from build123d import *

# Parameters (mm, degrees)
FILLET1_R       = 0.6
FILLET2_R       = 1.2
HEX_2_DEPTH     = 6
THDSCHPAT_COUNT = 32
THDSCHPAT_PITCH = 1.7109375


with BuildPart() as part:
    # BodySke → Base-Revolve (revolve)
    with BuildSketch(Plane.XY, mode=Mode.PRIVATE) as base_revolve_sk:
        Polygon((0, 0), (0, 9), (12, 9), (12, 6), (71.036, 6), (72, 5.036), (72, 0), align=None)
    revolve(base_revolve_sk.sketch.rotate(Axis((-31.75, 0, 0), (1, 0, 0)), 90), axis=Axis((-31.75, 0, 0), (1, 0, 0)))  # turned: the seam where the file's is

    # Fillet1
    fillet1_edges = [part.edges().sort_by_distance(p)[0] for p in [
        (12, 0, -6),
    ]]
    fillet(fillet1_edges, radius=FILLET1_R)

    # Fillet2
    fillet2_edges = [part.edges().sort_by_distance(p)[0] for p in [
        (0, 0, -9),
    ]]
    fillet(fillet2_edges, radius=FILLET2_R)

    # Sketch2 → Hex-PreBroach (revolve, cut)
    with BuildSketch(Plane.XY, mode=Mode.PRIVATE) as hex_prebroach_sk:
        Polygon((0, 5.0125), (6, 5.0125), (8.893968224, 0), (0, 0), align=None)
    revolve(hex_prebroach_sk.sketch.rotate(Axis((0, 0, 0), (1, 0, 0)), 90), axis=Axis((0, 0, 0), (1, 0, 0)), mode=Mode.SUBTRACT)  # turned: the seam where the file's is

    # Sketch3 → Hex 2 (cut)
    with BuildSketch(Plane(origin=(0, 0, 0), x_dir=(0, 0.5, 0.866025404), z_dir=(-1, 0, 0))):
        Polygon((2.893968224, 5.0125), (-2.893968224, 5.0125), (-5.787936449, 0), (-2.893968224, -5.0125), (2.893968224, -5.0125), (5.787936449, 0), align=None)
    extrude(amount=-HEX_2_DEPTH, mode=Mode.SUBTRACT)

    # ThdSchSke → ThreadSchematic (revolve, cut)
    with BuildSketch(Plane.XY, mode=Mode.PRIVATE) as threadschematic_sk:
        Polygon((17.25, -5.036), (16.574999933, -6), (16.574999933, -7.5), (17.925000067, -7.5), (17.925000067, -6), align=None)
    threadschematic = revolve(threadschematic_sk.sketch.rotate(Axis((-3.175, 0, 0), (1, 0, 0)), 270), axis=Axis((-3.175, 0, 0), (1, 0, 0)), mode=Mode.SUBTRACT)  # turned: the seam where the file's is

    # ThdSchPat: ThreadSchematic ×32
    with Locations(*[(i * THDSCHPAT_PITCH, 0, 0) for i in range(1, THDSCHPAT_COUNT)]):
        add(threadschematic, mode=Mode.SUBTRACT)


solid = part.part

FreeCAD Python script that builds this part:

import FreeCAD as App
import Part
import Sketcher
Q = App.Units.Quantity


def edges_at(feature, points):
    """Names of the edges that pass closest to the given points."""
    edges = feature.Shape.Edges
    near = lambda p: min(range(len(edges)), key=lambda i: edges[i].distToShape(Part.Vertex(*p))[0])
    return sorted({f"Edge{near(p) + 1}" for p in points})


def add_polygon(sketch, points):
    """Adds a closed chain of lines whose ends are joined by coincident constraints."""
    first, n = sketch.GeometryCount, len(points)
    for a, b in zip(points, points[1:] + points[:1]):
        sketch.addGeometry(Part.LineSegment(App.Vector(*a, 0), App.Vector(*b, 0)), False)
    for i in range(n):
        sketch.addConstraint(Sketcher.Constraint("Coincident", first + i, 2, first + (i + 1) % n, 1))

doc = App.newDocument("Part")
params = doc.addObject("Spreadsheet::Sheet", "Params")
for row, (alias, value) in enumerate([
    ("sketch1_width", "72 mm"),
    ("sketch1_width2", "12 mm"),
    ("sketch1_height", "9 mm"),
    ("sketch1_height2", "3 mm"),
    ("revolution_angle", "360 deg"),
    ("fillet_radius", "0.6 mm"),
    ("fillet2_radius", "1.2 mm"),
    ("sketch2_width", "6 mm"),
    ("groove_angle", "360 deg"),
    ("pocket1_length", "6 mm"),
    ("sketch4_height", "1.5 mm"),
    ("sketch4_width", "1.35 mm"),
    ("groove2_angle", "360 deg"),
    ("linearpattern_pitch", "1.710938 mm"),
], start=1):
    params.set(f"A{row}", alias)
    params.set(f"B{row}", "=" + value)
    params.setAlias(f"B{row}", alias)

body = doc.addObject("PartDesign::Body", "Body")

# Sketch on XY plane
sketch1 = doc.addObject("Sketcher::SketchObject", "Sketch")
body.addObject(sketch1)
sketch1.AttachmentSupport = (doc.XY_Plane, [""])
sketch1.MapMode = "FlatFace"
add_polygon(sketch1, [(0, 9), (0, 0), (72, 0), (72, 5), (71, 6), (12, 6), (12, 9)])  # lines 0-6
sketch1.addConstraint([
    Sketcher.Constraint("Vertical", 0),
    Sketcher.Constraint("Horizontal", 1),
    Sketcher.Constraint("Vertical", 2),
    Sketcher.Constraint("Horizontal", 4),
    Sketcher.Constraint("Vertical", 5),
    Sketcher.Constraint("Horizontal", 6),
    Sketcher.Constraint("Coincident", 0, 2, -1, 1),
    Sketcher.Constraint("DistanceX", 1, 1, 1, 2, 72.0),
    Sketcher.Constraint("DistanceX", 6, 2, 6, 1, 12.0),
    Sketcher.Constraint("DistanceY", 0, 2, 0, 1, 9.0),
    Sketcher.Constraint("DistanceY", 5, 1, 5, 2, 3.0),
    Sketcher.Constraint("Angle", 3, Q("135 deg")),
    Sketcher.Constraint("DistanceX", 4, 2, 4, 1, 59.036),
])
sketch1.setExpression("Constraints[14]", "Params.sketch1_width")
sketch1.setExpression("Constraints[15]", "Params.sketch1_width2")
sketch1.setExpression("Constraints[16]", "Params.sketch1_height")
sketch1.setExpression("Constraints[17]", "Params.sketch1_height2")
revolution = doc.addObject("PartDesign::Revolution", "Revolution")
body.addObject(revolution)
revolution.Profile = sketch1
revolution.ReferenceAxis = (sketch1, ["H_Axis"])
revolution.setExpression("Angle", "Params.revolution_angle")
doc.recompute()

fillet = doc.addObject("PartDesign::Fillet", "Fillet")
body.addObject(fillet)
fillet.Base = (revolution, edges_at(revolution, [(12, 0, -6)]))
fillet.setExpression("Radius", "Params.fillet_radius")
doc.recompute()

fillet2 = doc.addObject("PartDesign::Fillet", "Fillet001")
body.addObject(fillet2)
fillet2.Base = (fillet, edges_at(fillet, [(0, 0, -9)]))
fillet2.setExpression("Radius", "Params.fillet2_radius")

# Sketch on XY plane
sketch2 = doc.addObject("Sketcher::SketchObject", "Sketch001")
body.addObject(sketch2)
sketch2.AttachmentSupport = (doc.XY_Plane, [""])
sketch2.MapMode = "FlatFace"
add_polygon(sketch2, [(6, 5), (0, 5), (0, 0), (9, 0)])  # lines 0-3
sketch2.addConstraint([
    Sketcher.Constraint("Horizontal", 0),
    Sketcher.Constraint("Vertical", 1),
    Sketcher.Constraint("Horizontal", 2),
    Sketcher.Constraint("Coincident", 1, 2, -1, 1),
    Sketcher.Constraint("DistanceX", 0, 2, 0, 1, 6.0),
    Sketcher.Constraint("Angle", 3, Q("120 deg")),
    Sketcher.Constraint("DistanceY", 1, 2, 1, 1, 5.0125),
])
sketch2.setExpression("Constraints[8]", "Params.sketch2_width")
groove = doc.addObject("PartDesign::Groove", "Groove")
body.addObject(groove)
groove.Profile = sketch2
groove.ReferenceAxis = (sketch2, ["H_Axis"])
groove.setExpression("Angle", "Params.groove_angle")

# Sketch on YZ plane
sketch3 = doc.addObject("Sketcher::SketchObject", "Sketch002")
body.addObject(sketch3)
sketch3.AttachmentSupport = (doc.YZ_Plane, [""])
sketch3.MapMode = "FlatFace"
add_polygon(sketch3, [(6, 0), (3, -5), (-3, -5), (-6, 0), (-3, 5), (3, 5)])  # lines 0-5
sketch3.addConstraint([
    Sketcher.Constraint("Horizontal", 1),
    Sketcher.Constraint("Horizontal", 4),
    Sketcher.Constraint("Symmetric", 0, 2, 3, 2, -1, 1),
    Sketcher.Constraint("Symmetric", 2, 2, 5, 2, -1, 1),
    Sketcher.Constraint("PointOnObject", 2, 2, -1),
    Sketcher.Constraint("Parallel", 2, 5),
    Sketcher.Constraint("Vertical", 1, 2, 3, 2),
    Sketcher.Constraint("Angle", 0, Q("-120 deg")),
    Sketcher.Constraint("DistanceY", 1, 2, 3, 2, 10.025),
    Sketcher.Constraint("DistanceX", 1, 2, 1, 1, 5.787936),
])
pocket1 = doc.addObject("PartDesign::Pocket", "Pocket")
body.addObject(pocket1)
pocket1.Profile = sketch3
pocket1.setExpression("Length", "Params.pocket1_length")
pocket1.Reversed = True

# Sketch on XY plane
sketch4 = doc.addObject("Sketcher::SketchObject", "Sketch003")
body.addObject(sketch4)
sketch4.AttachmentSupport = (doc.XY_Plane, [""])
sketch4.MapMode = "FlatFace"
add_polygon(sketch4, [(17.2, -5), (16.6, -6), (16.6, -7.5), (17.9, -7.5), (17.9, -6)])  # lines 0-4
sketch4.addConstraint([
    Sketcher.Constraint("Vertical", 1),
    Sketcher.Constraint("Horizontal", 2),
    Sketcher.Constraint("Vertical", 3),
    Sketcher.Constraint("Horizontal", 0, 2, 3, 2),
    Sketcher.Constraint("Equal", 0, 4),
    Sketcher.Constraint("Angle", 0, Q("-125 deg")),
    Sketcher.Constraint("DistanceY", 1, 2, 1, 1, 1.5),
    Sketcher.Constraint("DistanceY", 0, 2, -1, 1, 6.0),
    Sketcher.Constraint("DistanceX", 2, 1, 2, 2, 1.35),
    Sketcher.Constraint("DistanceX", -1, 1, 4, 2, 17.25),
])
sketch4.setExpression("Constraints[11]", "Params.sketch4_height")
sketch4.setExpression("Constraints[13]", "Params.sketch4_width")
groove2 = doc.addObject("PartDesign::Groove", "Groove001")
body.addObject(groove2)
groove2.Profile = sketch4
groove2.ReferenceAxis = (sketch4, ["H_Axis"])
groove2.setExpression("Angle", "Params.groove2_angle")
doc.recompute()

linearpattern = doc.addObject("PartDesign::LinearPattern", "LinearPattern")
body.addObject(linearpattern)
linearpattern.Originals = [groove2]
linearpattern.Direction = (doc.X_Axis, [""])
linearpattern.Mode = "offset"
linearpattern.setExpression("Offset", "Params.linearpattern_pitch")
linearpattern.Occurrences = 32
body.Tip = linearpattern

doc.recompute()
